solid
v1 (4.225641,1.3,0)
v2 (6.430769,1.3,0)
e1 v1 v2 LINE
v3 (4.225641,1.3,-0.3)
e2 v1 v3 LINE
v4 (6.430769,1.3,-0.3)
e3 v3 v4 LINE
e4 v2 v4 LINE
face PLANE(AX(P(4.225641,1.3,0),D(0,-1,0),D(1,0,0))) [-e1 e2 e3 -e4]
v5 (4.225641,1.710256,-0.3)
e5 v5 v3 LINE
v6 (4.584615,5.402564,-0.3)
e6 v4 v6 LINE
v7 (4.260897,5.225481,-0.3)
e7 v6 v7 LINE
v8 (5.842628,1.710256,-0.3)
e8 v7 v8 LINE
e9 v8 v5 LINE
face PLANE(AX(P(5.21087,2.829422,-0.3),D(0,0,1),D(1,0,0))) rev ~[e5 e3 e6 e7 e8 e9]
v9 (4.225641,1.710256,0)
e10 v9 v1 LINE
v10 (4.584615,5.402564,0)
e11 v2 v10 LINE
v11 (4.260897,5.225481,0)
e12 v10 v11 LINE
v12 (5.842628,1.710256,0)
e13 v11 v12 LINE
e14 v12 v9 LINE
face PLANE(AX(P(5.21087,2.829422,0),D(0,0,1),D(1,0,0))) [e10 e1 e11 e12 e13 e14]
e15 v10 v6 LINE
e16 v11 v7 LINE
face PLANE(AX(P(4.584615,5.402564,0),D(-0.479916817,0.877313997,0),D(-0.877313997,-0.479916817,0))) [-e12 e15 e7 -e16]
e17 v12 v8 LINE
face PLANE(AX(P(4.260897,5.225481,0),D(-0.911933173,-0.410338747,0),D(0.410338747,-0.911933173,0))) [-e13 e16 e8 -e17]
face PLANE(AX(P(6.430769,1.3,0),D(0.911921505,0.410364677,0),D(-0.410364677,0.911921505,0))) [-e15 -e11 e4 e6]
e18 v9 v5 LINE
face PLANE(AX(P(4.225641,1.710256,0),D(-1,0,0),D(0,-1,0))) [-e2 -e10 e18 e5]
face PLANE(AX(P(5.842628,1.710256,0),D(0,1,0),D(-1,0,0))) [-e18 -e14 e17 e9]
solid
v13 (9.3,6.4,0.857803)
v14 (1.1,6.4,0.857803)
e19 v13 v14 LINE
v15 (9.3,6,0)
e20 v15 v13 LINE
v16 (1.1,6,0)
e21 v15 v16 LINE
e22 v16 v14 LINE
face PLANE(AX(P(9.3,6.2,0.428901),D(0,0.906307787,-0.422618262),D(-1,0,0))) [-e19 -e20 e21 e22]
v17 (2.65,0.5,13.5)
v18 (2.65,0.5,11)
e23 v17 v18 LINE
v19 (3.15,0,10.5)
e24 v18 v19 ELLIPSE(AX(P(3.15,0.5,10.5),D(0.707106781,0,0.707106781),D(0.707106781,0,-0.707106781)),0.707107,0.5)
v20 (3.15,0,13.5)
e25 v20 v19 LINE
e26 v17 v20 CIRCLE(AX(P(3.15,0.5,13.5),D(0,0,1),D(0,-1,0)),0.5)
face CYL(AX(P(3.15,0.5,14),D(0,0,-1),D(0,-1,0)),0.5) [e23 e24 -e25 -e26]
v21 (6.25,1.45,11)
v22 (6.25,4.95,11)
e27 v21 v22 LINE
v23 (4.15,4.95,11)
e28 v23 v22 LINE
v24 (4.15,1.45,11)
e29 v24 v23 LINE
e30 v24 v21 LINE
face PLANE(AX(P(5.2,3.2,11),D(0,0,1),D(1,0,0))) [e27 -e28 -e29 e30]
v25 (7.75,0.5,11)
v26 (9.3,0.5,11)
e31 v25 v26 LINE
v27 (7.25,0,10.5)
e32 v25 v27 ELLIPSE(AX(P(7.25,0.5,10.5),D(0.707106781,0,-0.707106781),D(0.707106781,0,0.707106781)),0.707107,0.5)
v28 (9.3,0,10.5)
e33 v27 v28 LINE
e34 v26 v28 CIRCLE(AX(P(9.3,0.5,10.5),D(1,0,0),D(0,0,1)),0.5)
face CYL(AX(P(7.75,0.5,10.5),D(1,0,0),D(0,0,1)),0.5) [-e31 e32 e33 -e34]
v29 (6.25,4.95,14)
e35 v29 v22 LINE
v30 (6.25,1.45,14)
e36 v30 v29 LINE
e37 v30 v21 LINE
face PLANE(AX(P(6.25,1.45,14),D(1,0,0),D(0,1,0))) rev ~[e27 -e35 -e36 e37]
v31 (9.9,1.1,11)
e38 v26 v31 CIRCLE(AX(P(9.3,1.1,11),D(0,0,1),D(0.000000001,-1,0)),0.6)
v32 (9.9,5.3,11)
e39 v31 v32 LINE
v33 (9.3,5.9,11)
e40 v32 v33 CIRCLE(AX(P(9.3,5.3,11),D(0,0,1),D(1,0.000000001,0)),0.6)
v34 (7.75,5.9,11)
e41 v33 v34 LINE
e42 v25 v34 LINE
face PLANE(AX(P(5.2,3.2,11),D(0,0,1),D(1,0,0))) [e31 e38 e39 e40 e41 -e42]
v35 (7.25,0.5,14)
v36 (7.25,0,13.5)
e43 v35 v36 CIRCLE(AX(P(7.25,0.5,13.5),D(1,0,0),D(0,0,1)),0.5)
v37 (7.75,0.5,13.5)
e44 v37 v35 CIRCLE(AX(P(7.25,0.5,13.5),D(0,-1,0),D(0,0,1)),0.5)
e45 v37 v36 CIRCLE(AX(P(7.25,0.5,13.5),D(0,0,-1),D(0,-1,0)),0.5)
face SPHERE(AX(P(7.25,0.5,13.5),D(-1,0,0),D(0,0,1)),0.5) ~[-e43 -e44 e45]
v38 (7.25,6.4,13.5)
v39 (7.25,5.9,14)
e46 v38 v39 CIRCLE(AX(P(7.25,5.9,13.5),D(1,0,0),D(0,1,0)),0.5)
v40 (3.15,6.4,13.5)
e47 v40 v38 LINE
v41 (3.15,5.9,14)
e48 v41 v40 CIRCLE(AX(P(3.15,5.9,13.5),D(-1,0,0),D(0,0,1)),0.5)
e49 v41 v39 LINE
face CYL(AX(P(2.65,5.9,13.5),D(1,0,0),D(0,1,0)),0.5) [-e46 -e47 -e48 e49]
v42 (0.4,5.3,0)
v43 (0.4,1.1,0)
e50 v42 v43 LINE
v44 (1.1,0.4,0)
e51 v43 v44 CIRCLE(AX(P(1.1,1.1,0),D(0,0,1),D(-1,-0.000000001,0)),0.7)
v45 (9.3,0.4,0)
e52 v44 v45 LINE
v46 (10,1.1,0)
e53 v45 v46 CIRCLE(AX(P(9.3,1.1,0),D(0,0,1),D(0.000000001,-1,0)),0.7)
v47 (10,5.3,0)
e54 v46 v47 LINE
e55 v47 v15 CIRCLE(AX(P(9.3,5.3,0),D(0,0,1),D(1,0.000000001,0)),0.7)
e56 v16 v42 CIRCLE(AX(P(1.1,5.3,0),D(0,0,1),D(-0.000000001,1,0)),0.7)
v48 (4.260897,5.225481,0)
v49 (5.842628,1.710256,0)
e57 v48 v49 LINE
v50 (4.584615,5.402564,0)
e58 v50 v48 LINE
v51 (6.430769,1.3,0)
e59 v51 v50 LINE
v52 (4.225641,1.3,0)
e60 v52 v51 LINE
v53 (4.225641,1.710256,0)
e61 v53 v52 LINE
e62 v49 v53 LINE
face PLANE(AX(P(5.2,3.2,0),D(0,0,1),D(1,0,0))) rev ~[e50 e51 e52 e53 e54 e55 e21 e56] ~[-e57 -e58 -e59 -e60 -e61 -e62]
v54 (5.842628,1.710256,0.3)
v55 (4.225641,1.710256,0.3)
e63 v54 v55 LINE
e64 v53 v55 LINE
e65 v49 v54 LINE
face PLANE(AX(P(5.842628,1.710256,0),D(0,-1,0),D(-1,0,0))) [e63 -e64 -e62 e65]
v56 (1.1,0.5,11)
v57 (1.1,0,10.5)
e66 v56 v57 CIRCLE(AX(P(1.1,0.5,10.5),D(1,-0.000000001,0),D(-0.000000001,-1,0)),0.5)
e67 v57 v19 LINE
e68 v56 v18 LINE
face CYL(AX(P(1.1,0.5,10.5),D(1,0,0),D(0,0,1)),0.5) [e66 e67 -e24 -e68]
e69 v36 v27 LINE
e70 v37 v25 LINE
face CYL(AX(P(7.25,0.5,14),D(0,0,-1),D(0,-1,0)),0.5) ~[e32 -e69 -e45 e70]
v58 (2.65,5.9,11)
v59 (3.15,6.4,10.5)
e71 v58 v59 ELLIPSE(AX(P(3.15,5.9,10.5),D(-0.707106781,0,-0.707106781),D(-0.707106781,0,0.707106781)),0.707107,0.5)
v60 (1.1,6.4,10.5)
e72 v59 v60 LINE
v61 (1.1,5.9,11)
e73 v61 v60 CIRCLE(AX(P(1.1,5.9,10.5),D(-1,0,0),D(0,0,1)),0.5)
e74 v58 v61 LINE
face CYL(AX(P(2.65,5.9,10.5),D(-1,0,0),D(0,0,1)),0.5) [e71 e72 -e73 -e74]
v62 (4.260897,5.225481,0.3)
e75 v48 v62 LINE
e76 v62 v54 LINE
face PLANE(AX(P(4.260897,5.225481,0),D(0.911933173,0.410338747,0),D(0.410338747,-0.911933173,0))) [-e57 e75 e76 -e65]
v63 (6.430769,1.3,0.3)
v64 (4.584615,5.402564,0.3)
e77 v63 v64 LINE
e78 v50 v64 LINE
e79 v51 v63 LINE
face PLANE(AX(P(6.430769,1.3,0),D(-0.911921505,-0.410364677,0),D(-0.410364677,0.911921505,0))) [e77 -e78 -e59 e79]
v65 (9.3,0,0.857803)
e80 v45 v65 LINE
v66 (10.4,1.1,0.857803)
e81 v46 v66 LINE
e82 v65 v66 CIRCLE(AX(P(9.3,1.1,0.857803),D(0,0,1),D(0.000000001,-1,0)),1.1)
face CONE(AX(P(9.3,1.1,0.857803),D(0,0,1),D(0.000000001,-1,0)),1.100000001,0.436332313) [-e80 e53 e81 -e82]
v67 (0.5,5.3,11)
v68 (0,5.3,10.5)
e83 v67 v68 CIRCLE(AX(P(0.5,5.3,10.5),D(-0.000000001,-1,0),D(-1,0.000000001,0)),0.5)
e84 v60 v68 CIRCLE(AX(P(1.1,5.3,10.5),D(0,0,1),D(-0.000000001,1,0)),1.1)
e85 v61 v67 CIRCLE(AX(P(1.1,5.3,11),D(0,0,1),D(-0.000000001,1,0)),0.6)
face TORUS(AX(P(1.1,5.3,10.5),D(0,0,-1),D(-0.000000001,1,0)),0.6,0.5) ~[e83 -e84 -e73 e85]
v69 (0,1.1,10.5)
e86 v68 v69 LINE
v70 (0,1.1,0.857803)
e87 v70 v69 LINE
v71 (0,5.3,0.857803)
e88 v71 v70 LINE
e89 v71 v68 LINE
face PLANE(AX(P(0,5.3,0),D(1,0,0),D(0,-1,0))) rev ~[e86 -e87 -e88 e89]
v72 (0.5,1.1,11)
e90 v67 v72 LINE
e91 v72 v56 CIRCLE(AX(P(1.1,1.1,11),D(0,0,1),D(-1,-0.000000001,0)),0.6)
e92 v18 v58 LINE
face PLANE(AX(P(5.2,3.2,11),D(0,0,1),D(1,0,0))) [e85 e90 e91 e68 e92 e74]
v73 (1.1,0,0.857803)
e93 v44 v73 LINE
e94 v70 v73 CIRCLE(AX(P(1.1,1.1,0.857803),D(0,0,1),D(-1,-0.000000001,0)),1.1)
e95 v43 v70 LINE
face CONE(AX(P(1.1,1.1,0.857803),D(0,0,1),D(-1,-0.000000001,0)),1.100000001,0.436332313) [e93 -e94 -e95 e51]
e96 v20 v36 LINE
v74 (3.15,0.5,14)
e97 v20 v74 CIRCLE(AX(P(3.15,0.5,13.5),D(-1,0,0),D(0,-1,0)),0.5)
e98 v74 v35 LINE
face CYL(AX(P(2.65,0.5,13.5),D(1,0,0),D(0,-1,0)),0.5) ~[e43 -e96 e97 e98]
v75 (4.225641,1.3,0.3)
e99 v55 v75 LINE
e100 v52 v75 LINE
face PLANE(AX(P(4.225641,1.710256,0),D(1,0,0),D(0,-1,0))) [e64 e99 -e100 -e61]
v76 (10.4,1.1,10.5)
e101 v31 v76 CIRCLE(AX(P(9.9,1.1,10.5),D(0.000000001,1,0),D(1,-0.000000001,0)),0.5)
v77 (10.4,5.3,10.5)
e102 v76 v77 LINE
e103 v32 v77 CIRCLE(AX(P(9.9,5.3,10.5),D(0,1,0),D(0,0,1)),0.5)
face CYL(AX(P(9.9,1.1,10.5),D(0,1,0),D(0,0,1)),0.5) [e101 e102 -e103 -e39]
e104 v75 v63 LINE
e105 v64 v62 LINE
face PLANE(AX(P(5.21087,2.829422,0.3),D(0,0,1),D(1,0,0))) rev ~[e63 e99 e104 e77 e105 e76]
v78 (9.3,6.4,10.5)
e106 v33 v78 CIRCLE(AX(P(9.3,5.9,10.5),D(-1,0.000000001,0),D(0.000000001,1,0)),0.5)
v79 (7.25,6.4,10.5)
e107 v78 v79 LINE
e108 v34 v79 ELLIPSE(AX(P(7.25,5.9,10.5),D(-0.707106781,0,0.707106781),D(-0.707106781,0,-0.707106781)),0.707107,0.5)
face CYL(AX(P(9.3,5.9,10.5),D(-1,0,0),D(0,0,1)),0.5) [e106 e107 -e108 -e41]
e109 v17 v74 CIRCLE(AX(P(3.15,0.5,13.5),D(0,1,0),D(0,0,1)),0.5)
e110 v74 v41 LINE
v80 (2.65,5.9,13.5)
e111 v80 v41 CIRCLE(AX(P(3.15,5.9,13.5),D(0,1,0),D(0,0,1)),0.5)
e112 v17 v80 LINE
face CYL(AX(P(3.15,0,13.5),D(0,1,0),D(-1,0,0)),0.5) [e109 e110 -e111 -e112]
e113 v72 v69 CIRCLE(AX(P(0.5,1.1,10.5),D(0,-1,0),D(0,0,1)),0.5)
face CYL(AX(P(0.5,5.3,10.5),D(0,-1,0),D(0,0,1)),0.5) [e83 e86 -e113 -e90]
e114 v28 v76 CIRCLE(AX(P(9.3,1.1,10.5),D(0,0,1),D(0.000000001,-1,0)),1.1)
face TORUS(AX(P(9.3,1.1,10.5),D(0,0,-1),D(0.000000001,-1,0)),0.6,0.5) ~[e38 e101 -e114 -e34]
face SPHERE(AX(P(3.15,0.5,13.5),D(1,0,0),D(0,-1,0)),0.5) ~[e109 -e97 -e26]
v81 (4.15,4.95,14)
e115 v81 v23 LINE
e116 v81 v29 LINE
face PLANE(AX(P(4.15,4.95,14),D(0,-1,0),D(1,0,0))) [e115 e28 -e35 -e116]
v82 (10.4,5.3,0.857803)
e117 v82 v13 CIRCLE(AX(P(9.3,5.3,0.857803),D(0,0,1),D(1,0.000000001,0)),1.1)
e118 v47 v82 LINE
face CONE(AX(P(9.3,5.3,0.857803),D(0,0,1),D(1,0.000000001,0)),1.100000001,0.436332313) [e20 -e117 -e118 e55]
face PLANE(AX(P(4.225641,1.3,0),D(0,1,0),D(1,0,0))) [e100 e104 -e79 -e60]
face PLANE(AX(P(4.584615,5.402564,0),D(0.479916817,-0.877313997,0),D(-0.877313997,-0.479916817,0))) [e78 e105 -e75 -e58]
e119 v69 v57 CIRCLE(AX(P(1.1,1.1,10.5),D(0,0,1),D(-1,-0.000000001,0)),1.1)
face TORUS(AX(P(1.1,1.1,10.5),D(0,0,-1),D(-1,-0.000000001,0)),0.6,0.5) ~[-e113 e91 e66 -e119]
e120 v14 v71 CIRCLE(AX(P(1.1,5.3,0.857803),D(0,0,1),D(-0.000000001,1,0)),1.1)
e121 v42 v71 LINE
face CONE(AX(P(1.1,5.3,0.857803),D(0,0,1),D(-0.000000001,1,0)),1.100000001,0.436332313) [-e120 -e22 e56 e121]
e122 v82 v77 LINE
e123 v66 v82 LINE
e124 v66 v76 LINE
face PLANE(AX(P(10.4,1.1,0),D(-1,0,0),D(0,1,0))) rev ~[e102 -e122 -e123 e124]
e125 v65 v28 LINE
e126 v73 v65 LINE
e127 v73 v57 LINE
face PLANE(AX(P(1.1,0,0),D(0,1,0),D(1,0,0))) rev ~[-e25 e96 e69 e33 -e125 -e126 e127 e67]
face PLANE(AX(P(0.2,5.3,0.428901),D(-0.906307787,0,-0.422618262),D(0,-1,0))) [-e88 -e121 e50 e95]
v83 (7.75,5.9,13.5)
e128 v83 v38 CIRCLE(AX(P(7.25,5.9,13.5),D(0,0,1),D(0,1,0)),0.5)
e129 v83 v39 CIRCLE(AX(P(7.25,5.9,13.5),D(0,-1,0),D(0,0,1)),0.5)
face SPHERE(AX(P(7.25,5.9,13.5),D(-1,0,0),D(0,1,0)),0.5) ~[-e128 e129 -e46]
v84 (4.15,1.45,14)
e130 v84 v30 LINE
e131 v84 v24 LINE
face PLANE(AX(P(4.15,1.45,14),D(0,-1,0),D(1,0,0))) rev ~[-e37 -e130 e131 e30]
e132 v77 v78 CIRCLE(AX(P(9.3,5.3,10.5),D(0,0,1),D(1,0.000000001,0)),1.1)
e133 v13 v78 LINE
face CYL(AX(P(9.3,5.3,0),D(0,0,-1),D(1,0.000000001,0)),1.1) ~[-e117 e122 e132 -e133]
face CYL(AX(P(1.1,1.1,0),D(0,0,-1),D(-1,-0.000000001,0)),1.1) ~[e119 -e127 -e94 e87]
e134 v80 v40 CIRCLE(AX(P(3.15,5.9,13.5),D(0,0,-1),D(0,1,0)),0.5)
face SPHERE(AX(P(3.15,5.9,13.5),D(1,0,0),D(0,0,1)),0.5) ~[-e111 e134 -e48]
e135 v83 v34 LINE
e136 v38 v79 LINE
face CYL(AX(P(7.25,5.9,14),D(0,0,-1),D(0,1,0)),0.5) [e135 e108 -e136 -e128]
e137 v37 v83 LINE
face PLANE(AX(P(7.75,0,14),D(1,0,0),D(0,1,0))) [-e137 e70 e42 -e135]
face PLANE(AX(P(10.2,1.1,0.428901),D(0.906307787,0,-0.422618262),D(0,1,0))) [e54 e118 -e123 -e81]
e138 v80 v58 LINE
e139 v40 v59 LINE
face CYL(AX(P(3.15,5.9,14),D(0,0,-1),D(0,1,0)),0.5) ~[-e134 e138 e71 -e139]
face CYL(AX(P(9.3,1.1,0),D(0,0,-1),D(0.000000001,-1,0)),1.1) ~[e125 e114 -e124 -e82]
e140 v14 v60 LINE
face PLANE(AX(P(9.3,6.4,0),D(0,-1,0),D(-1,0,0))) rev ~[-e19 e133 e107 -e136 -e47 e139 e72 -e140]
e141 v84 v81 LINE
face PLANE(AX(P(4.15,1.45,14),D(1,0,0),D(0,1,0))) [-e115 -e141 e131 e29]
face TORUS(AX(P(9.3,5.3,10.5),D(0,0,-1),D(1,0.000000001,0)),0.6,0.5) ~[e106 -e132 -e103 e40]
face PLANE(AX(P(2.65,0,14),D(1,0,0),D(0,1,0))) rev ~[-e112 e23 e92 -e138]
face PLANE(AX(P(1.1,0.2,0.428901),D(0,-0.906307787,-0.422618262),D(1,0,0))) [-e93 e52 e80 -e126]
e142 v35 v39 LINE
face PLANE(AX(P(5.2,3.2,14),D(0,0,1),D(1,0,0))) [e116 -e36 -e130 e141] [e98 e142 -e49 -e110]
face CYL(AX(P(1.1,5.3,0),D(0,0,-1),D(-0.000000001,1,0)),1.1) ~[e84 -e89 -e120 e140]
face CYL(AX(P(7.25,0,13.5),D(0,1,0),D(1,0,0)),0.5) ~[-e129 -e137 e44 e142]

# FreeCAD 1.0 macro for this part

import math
import FreeCAD as App
import Part
import Sketcher
from FreeCAD import Vector


def edges_at(feature, points):
    """Names of the edges that pass closest to the given points."""
    edges = feature.Shape.Edges
    near = lambda p: min(range(len(edges)), key=lambda i: edges[i].distToShape(Part.Vertex(*p))[0])
    return sorted({f"Edge{near(p) + 1}" for p in points})


def add_polygon(sketch, points):
    """Adds a closed chain of lines whose ends are joined by coincident constraints."""
    first, n = sketch.GeometryCount, len(points)
    for a, b in zip(points, points[1:] + points[:1]):
        sketch.addGeometry(Part.LineSegment(App.Vector(*a, 0), App.Vector(*b, 0)), False)
    for i in range(n):
        sketch.addConstraint(Sketcher.Constraint("Coincident", first + i, 2, first + (i + 1) % n, 1))

doc = App.newDocument("Part")
params = doc.addObject("Spreadsheet::Sheet", "Params")
for row, (alias, value) in enumerate([
    ("sketch1_radius", "1.1 mm"),
    ("sketch1_width", "8.2 mm"),
    ("sketch1_height", "4.2 mm"),
    ("pad1_length", "14 mm"),
    ("sketch2_width", "2.1 mm"),
    ("sketch2_height", "3.5 mm"),
    ("pocket1_length", "3 mm"),
    ("sketch3_width", "5.1 mm"),
    ("sketch3_height", "6.4 mm"),
    ("pocket2_length", "3 mm"),
    ("fillet_radius", "0.5 mm"),
    ("chamfer_size", "0.4 mm"),
    ("chamfer_size2", "0.857803 mm"),
    ("pocket3_length", "0.3 mm"),
    ("pad2_length", "0.3 mm"),
], start=1):
    params.set(f"A{row}", alias)
    params.set(f"B{row}", "=" + value)
    params.setAlias(f"B{row}", alias)

body = doc.addObject("PartDesign::Body", "Body")

sketch1 = doc.addObject("Sketcher::SketchObject", "Sketch")
body.addObject(sketch1)
sketch1.AttachmentSupport = (doc.XY_Plane, [""])
sketch1.MapMode = "FlatFace"
sketch1.addGeometry([
    Part.LineSegment(Vector(1.1, 0, 0), Vector(9.3, 0, 0)),
    Part.ArcOfCircle(Part.Circle(Vector(9.3, 1.1, 0), Vector(0, 0, 1), 1.1), math.radians(-90), math.radians(0)),
    Part.LineSegment(Vector(10.4, 1.1, 0), Vector(10.4, 5.3, 0)),
    Part.ArcOfCircle(Part.Circle(Vector(9.3, 5.3, 0), Vector(0, 0, 1), 1.1), math.radians(0), math.radians(90)),
    Part.LineSegment(Vector(9.3, 6.4, 0), Vector(1.1, 6.4, 0)),
    Part.ArcOfCircle(Part.Circle(Vector(1.1, 5.3, 0), Vector(0, 0, 1), 1.1), math.radians(90), math.radians(180)),
    Part.LineSegment(Vector(0, 5.3, 0), Vector(0, 1.1, 0)),
    Part.ArcOfCircle(Part.Circle(Vector(1.1, 1.1, 0), Vector(0, 0, 1), 1.1), math.radians(-180), math.radians(-90)),
], False)
sketch1.addConstraint([
    Sketcher.Constraint("Tangent", 0, 2, 1, 1),
    Sketcher.Constraint("Tangent", 1, 2, 2, 1),
    Sketcher.Constraint("Tangent", 2, 2, 3, 1),
    Sketcher.Constraint("Tangent", 3, 2, 4, 1),
    Sketcher.Constraint("Tangent", 4, 2, 5, 1),
    Sketcher.Constraint("Tangent", 5, 2, 6, 1),
    Sketcher.Constraint("Tangent", 6, 2, 7, 1),
    Sketcher.Constraint("Tangent", 7, 2, 0, 1),
    Sketcher.Constraint("Horizontal", 0),
    Sketcher.Constraint("Vertical", 2),
    Sketcher.Constraint("Horizontal", 4),
    Sketcher.Constraint("Vertical", 6),
    Sketcher.Constraint("Equal", 1, 3),
    Sketcher.Constraint("Equal", 3, 5),
    Sketcher.Constraint("Equal", 5, 7),
    Sketcher.Constraint("PointOnObject", 0, 2, -1),
    Sketcher.Constraint("PointOnObject", 5, 2, -2),
    Sketcher.Constraint("Radius", 1, 1.1),
    Sketcher.Constraint("DistanceX", 0, 1, 0, 2, 8.2),
    Sketcher.Constraint("DistanceY", 2, 1, 2, 2, 4.2),
])
sketch1.setExpression("Constraints[17]", "Params.sketch1_radius")
sketch1.setExpression("Constraints[18]", "Params.sketch1_width")
sketch1.setExpression("Constraints[19]", "Params.sketch1_height")
pad1 = doc.addObject("PartDesign::Pad", "Pad")
body.addObject(pad1)
pad1.Profile = sketch1
pad1.setExpression("Length", "Params.pad1_length")

sketch2 = doc.addObject("Sketcher::SketchObject", "Sketch001")
body.addObject(sketch2)
sketch2.AttachmentSupport = (doc.XY_Plane, [""])
sketch2.MapMode = "FlatFace"
sketch2.AttachmentOffset = App.Placement(Vector(0, 0, 14), App.Rotation())
add_polygon(sketch2, [(4.2, 5), (4.2, 1.4), (6.2, 1.4), (6.2, 5)])
sketch2.addConstraint([
    Sketcher.Constraint("Vertical", 0),
    Sketcher.Constraint("Horizontal", 1),
    Sketcher.Constraint("Vertical", 2),
    Sketcher.Constraint("Horizontal", 3),
    Sketcher.Constraint("DistanceX", 1, 1, 1, 2, 2.1),
    Sketcher.Constraint("DistanceY", 0, 2, 0, 1, 3.5),
    Sketcher.Constraint("DistanceX", -1, 1, 0, 2, 4.15),
    Sketcher.Constraint("DistanceY", -1, 1, 0, 2, 1.45),
])
sketch2.setExpression("Constraints[8]", "Params.sketch2_width")
sketch2.setExpression("Constraints[9]", "Params.sketch2_height")
pocket1 = doc.addObject("PartDesign::Pocket", "Pocket")
body.addObject(pocket1)
pocket1.Profile = sketch2
pocket1.setExpression("Length", "Params.pocket1_length")

sketch3 = doc.addObject("Sketcher::SketchObject", "Sketch002")
body.addObject(sketch3)
sketch3.AttachmentSupport = (doc.XY_Plane, [""])
sketch3.MapMode = "FlatFace"
sketch3.AttachmentOffset = App.Placement(Vector(0, 0, 14), App.Rotation())
add_polygon(sketch3, [(-3, 9), (-3, -3), (13, -3), (13, 9)])
add_polygon(sketch3, [(8, 0), (3, 0), (3, 6), (8, 6)])
sketch3.addConstraint([
    Sketcher.Constraint("Vertical", 0),
    Sketcher.Constraint("Horizontal", 1),
    Sketcher.Constraint("Vertical", 2),
    Sketcher.Constraint("Horizontal", 3),
    Sketcher.Constraint("Horizontal", 4),
    Sketcher.Constraint("Vertical", 5),
    Sketcher.Constraint("Horizontal", 6),
    Sketcher.Constraint("Vertical", 7),
    Sketcher.Constraint("PointOnObject", 4, 2, -1),
    Sketcher.Constraint("DistanceX", 4, 2, 4, 1, 5.1),
    Sketcher.Constraint("DistanceY", 5, 1, 5, 2, 6.4),
    Sketcher.Constraint("DistanceX", 1, 1, 1, 2, 16.116),
    Sketcher.Constraint("DistanceY", 0, 2, 0, 1, 12.116),
    Sketcher.Constraint("DistanceX", -1, 1, 4, 2, 2.65),
    Sketcher.Constraint("DistanceX", 0, 2, -1, 1, 2.858),
    Sketcher.Constraint("DistanceY", 0, 2, -1, 1, 2.858),
])
sketch3.setExpression("Constraints[17]", "Params.sketch3_width")
sketch3.setExpression("Constraints[18]", "Params.sketch3_height")
pocket2 = doc.addObject("PartDesign::Pocket", "Pocket001")
body.addObject(pocket2)
pocket2.Profile = sketch3
pocket2.setExpression("Length", "Params.pocket2_length")
doc.recompute()

fillet = doc.addObject("PartDesign::Fillet", "Fillet")
body.addObject(fillet)
fillet.Base = (pocket2, edges_at(pocket2, [
    (5.2, 6.4, 14),
    (5.2, 0, 14),
    (10.4, 3.2, 11),
    (1.875, 6.4, 11),
    (0.322, 6.078, 11),
    (0, 3.2, 11),
    (0.322, 0.322, 11),
    (1.875, 0, 11),
    (8.525, 0, 11),
    (10.078, 0.322, 11),
    (10.078, 6.078, 11),
    (8.525, 6.4, 11),
    (7.75, 6.4, 12.5),
    (7.75, 3.2, 14),
    (7.75, 0, 12.5),
    (2.65, 0, 12.5),
    (2.65, 3.2, 14),
    (2.65, 6.4, 12.5),
]))
fillet.setExpression("Radius", "Params.fillet_radius")
doc.recompute()

chamfer = doc.addObject("PartDesign::Chamfer", "Chamfer")
body.addObject(chamfer)
chamfer.Base = (fillet, edges_at(fillet, [
    (5.2, 6.4, 0),
    (10.078, 6.078, 0),
    (10.4, 3.2, 0),
    (10.078, 0.322, 0),
    (5.2, 0, 0),
    (0.322, 0.322, 0),
    (0, 3.2, 0),
    (0.322, 6.078, 0),
]))
chamfer.ChamferType = "Two distances"
chamfer.setExpression("Size", "Params.chamfer_size")
chamfer.setExpression("Size2", "Params.chamfer_size2")

sketch4 = doc.addObject("Sketcher::SketchObject", "Sketch003")
body.addObject(sketch4)
sketch4.AttachmentSupport = (doc.XY_Plane, [""])
sketch4.MapMode = "FlatFace"
add_polygon(sketch4, [(6.43, 1.3), (4.23, 1.3), (4.23, 1.71), (5.84, 1.71), (4.26, 5.23), (4.58, 5.4)])
sketch4.addConstraint([
    Sketcher.Constraint("Horizontal", 0),
    Sketcher.Constraint("Vertical", 1),
    Sketcher.Constraint("Horizontal", 2),
    Sketcher.Constraint("DistanceY", -1, 1, 0, 2, 1.3),
    Sketcher.Constraint("DistanceX", 0, 2, 0, 1, 2.205128),
    Sketcher.Constraint("DistanceX", 2, 1, 2, 2, 1.616987),
    Sketcher.Constraint("DistanceY", 1, 1, 1, 2, 0.410256),
    Sketcher.Constraint("DistanceX", -1, 1, 0, 2, 4.225641),
    Sketcher.Constraint("DistanceY", -1, 1, 3, 2, 5.225481),
    Sketcher.Constraint("DistanceX", 3, 2, 2, 2, 1.581731),
    Sketcher.Constraint("Distance", 4, 0.368988),
    Sketcher.Constraint("Distance", 5, 4.498813),
])
pocket3 = doc.addObject("PartDesign::Pocket", "Pocket002")
body.addObject(pocket3)
pocket3.Profile = sketch4
pocket3.setExpression("Length", "Params.pocket3_length")
pocket3.Reversed = True
body2 = doc.addObject("PartDesign::Body", "Body001")

sketch5 = doc.addObject("Sketcher::SketchObject", "Sketch004")
body2.addObject(sketch5)
sketch5.AttachmentSupport = (doc.getObject("XY_Plane001"), [""])
sketch5.MapMode = "FlatFace"
add_polygon(sketch5, [(6.43, 1.3), (4.23, 1.3), (4.23, 1.71), (5.84, 1.71), (4.26, 5.23), (4.58, 5.4)])
sketch5.addConstraint([
    Sketcher.Constraint("Horizontal", 0),
    Sketcher.Constraint("Vertical", 1),
    Sketcher.Constraint("Horizontal", 2),
    Sketcher.Constraint("DistanceY", -1, 1, 0, 2, 1.3),
    Sketcher.Constraint("DistanceX", 0, 2, 0, 1, 2.205128),
    Sketcher.Constraint("DistanceX", 2, 1, 2, 2, 1.616987),
    Sketcher.Constraint("DistanceY", 1, 1, 1, 2, 0.410256),
    Sketcher.Constraint("DistanceX", -1, 1, 0, 2, 4.225641),
    Sketcher.Constraint("DistanceY", -1, 1, 3, 2, 5.225481),
    Sketcher.Constraint("DistanceX", 3, 2, 2, 2, 1.581731),
    Sketcher.Constraint("Distance", 4, 0.368988),
    Sketcher.Constraint("Distance", 5, 4.498813),
])
pad2 = doc.addObject("PartDesign::Pad", "Pad001")
body2.addObject(pad2)
pad2.Profile = sketch5
pad2.setExpression("Length", "Params.pad2_length")
pad2.Reversed = True

doc.recompute()
